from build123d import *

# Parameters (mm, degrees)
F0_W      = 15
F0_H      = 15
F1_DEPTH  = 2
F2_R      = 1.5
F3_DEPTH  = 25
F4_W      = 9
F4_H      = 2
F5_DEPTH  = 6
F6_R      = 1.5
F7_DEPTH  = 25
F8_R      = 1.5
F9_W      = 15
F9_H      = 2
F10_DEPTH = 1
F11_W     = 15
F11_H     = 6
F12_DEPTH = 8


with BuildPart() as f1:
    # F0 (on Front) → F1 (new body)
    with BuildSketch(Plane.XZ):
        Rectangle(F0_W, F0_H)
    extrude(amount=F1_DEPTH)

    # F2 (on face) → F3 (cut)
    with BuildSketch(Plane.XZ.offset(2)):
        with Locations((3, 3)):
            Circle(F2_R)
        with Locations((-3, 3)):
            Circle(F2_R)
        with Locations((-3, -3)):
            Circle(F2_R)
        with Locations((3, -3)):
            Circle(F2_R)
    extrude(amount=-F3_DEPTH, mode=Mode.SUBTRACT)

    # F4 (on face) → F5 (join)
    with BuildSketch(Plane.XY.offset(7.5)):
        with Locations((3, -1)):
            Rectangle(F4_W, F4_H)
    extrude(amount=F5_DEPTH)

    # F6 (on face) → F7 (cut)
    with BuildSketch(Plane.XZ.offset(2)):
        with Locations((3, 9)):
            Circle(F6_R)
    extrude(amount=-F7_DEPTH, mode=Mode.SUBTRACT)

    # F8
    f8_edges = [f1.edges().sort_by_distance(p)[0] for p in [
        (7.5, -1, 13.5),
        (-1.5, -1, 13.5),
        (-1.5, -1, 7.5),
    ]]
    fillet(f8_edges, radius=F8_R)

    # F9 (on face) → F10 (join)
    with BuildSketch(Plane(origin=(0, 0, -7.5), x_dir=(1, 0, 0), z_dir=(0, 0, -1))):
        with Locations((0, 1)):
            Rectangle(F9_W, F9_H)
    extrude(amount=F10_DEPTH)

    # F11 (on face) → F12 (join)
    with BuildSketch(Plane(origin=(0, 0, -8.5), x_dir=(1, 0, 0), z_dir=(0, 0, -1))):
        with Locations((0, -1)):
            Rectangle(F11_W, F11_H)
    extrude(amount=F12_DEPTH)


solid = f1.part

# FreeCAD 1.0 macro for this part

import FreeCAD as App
import Part
import Sketcher

V = App.Vector
Q = App.Units.Quantity


def edges_at(feature, points):
    """Names of the edges that pass closest to the given points."""
    edges = feature.Shape.Edges
    near = lambda p: min(range(len(edges)), key=lambda i: edges[i].distToShape(Part.Vertex(*p))[0])
    return sorted({f"Edge{near(p) + 1}" for p in points})

doc = App.newDocument("Part")
body = doc.addObject("PartDesign::Body", "Body")

# Sketch on XZ plane
sketch1 = body.newObject("Sketcher::SketchObject", "Sketch")
sketch1.AttachmentSupport = (doc.getObject("XZ_Plane"), [""])
sketch1.MapMode = "FlatFace"
sketch1.addGeometry(Part.LineSegment(V(-8, 8, 0), V(-8, -8, 0)), False)
sketch1.addGeometry(Part.LineSegment(V(-8, -8, 0), V(8, -8, 0)), False)
sketch1.addGeometry(Part.LineSegment(V(8, -8, 0), V(8, 8, 0)), False)
sketch1.addGeometry(Part.LineSegment(V(8, 8, 0), V(-8, 8, 0)), False)
sketch1.addConstraint(Sketcher.Constraint("Coincident", 0, 2, 1, 1))
sketch1.addConstraint(Sketcher.Constraint("Coincident", 1, 2, 2, 1))
sketch1.addConstraint(Sketcher.Constraint("Coincident", 2, 2, 3, 1))
sketch1.addConstraint(Sketcher.Constraint("Coincident", 3, 2, 0, 1))
sketch1.addConstraint(Sketcher.Constraint("Vertical", 0))
sketch1.addConstraint(Sketcher.Constraint("Horizontal", 1))
sketch1.addConstraint(Sketcher.Constraint("Vertical", 2))
sketch1.addConstraint(Sketcher.Constraint("Horizontal", 3))
sketch1.addConstraint(Sketcher.Constraint("Symmetric", 0, 2, 2, 2, -1, 1))
sketch1.addConstraint(Sketcher.Constraint("Equal", 3, 0))
sketch1.addConstraint(Sketcher.Constraint("DistanceX", 1, 1, 1, 2, Q("15 mm")))
pad1 = body.newObject("PartDesign::Pad", "Pad")
pad1.Profile = sketch1
pad1.Length = 2

# Sketch on XZ plane
sketch2 = body.newObject("Sketcher::SketchObject", "Sketch001")
sketch2.AttachmentSupport = (doc.getObject("XZ_Plane"), [""])
sketch2.MapMode = "FlatFace"
sketch2.AttachmentOffset = App.Placement(V(0, 0, 2), App.Rotation())
sketch2.addGeometry(Part.Circle(V(3, 3, 0), V(0, 0, 1), 1.5), False)
sketch2.addGeometry(Part.Circle(V(-3, 3, 0), V(0, 0, 1), 1.5), False)
sketch2.addGeometry(Part.Circle(V(-3, -3, 0), V(0, 0, 1), 1.5), False)
sketch2.addGeometry(Part.Circle(V(3, -3, 0), V(0, 0, 1), 1.5), False)
sketch2.addConstraint(Sketcher.Constraint("Equal", 0, 1))
sketch2.addConstraint(Sketcher.Constraint("Equal", 1, 2))
sketch2.addConstraint(Sketcher.Constraint("Equal", 2, 3))
sketch2.addConstraint(Sketcher.Constraint("Symmetric", 0, 3, 2, 3, -1, 1))
sketch2.addConstraint(Sketcher.Constraint("Symmetric", 1, 3, 3, 3, -1, 1))
sketch2.addConstraint(Sketcher.Constraint("Symmetric", 0, 3, 1, 3, -2))
sketch2.addConstraint(Sketcher.Constraint("Diameter", 0, Q("3 mm")))
sketch2.addConstraint(Sketcher.Constraint("DistanceX", -1, 1, 0, 3, Q("3 mm")))
sketch2.addConstraint(Sketcher.Constraint("DistanceY", -1, 1, 0, 3, Q("3 mm")))
pocket1 = body.newObject("PartDesign::Pocket", "Pocket")
pocket1.Profile = sketch2
pocket1.Length = 25

# Sketch on XY plane
sketch3 = body.newObject("Sketcher::SketchObject", "Sketch002")
sketch3.AttachmentSupport = (doc.getObject("XY_Plane"), [""])
sketch3.MapMode = "FlatFace"
sketch3.AttachmentOffset = App.Placement(V(0, 0, 7.5), App.Rotation())
sketch3.addGeometry(Part.LineSegment(V(-1.5, 0, 0), V(-1.5, -2, 0)), False)
sketch3.addGeometry(Part.LineSegment(V(-1.5, -2, 0), V(7.5, -2, 0)), False)
sketch3.addGeometry(Part.LineSegment(V(7.5, -2, 0), V(7.5, 0, 0)), False)
sketch3.addGeometry(Part.LineSegment(V(7.5, 0, 0), V(-1.5, 0, 0)), False)
sketch3.addConstraint(Sketcher.Constraint("Coincident", 0, 2, 1, 1))
sketch3.addConstraint(Sketcher.Constraint("Coincident", 1, 2, 2, 1))
sketch3.addConstraint(Sketcher.Constraint("Coincident", 2, 2, 3, 1))
sketch3.addConstraint(Sketcher.Constraint("Coincident", 3, 2, 0, 1))
sketch3.addConstraint(Sketcher.Constraint("Vertical", 0))
sketch3.addConstraint(Sketcher.Constraint("Horizontal", 1))
sketch3.addConstraint(Sketcher.Constraint("Vertical", 2))
sketch3.addConstraint(Sketcher.Constraint("Horizontal", 3))
sketch3.addConstraint(Sketcher.Constraint("PointOnObject", 2, 2, -1))
sketch3.addConstraint(Sketcher.Constraint("DistanceX", 1, 1, 1, 2, Q("9 mm")))
sketch3.addConstraint(Sketcher.Constraint("DistanceY", 0, 2, 0, 1, Q("2 mm")))
sketch3.addConstraint(Sketcher.Constraint("DistanceX", 0, 2, -1, 1, Q("1.5 mm")))
pad2 = body.newObject("PartDesign::Pad", "Pad001")
pad2.Profile = sketch3
pad2.Length = 6

# Sketch on XZ plane
sketch4 = body.newObject("Sketcher::SketchObject", "Sketch003")
sketch4.AttachmentSupport = (doc.getObject("XZ_Plane"), [""])
sketch4.MapMode = "FlatFace"
sketch4.AttachmentOffset = App.Placement(V(0, 0, 2), App.Rotation())
sketch4.addGeometry(Part.Circle(V(3, 9, 0), V(0, 0, 1), 1.5), False)
sketch4.addConstraint(Sketcher.Constraint("Diameter", 0, Q("3 mm")))
sketch4.addConstraint(Sketcher.Constraint("DistanceX", -1, 1, 0, 3, Q("3 mm")))
sketch4.addConstraint(Sketcher.Constraint("DistanceY", -1, 1, 0, 3, Q("9 mm")))
pocket2 = body.newObject("PartDesign::Pocket", "Pocket001")
pocket2.Profile = sketch4
pocket2.Length = 25
doc.recompute()

fillet = body.newObject("PartDesign::Fillet", "Fillet")
fillet.Base = (pocket2, edges_at(pocket2, [(7.5, -1, 13.5), (-1.5, -1, 13.5), (-1.5, -1, 7.5)]))
fillet.Radius = 1.5

# Sketch on XY plane
sketch5 = body.newObject("Sketcher::SketchObject", "Sketch004")
sketch5.AttachmentSupport = (doc.getObject("XY_Plane"), [""])
sketch5.MapMode = "FlatFace"
sketch5.AttachmentOffset = App.Placement(V(0, 0, -7.5), App.Rotation())
sketch5.addGeometry(Part.LineSegment(V(-7.5, -2, 0), V(-7.5, 0, 0)), False)
sketch5.addGeometry(Part.LineSegment(V(-7.5, 0, 0), V(7.5, 0, 0)), False)
sketch5.addGeometry(Part.LineSegment(V(7.5, 0, 0), V(7.5, -2, 0)), False)
sketch5.addGeometry(Part.LineSegment(V(7.5, -2, 0), V(-7.5, -2, 0)), False)
sketch5.addConstraint(Sketcher.Constraint("Coincident", 0, 2, 1, 1))
sketch5.addConstraint(Sketcher.Constraint("Coincident", 1, 2, 2, 1))
sketch5.addConstraint(Sketcher.Constraint("Coincident", 2, 2, 3, 1))
sketch5.addConstraint(Sketcher.Constraint("Coincident", 3, 2, 0, 1))
sketch5.addConstraint(Sketcher.Constraint("Vertical", 0))
sketch5.addConstraint(Sketcher.Constraint("Horizontal", 1))
sketch5.addConstraint(Sketcher.Constraint("Vertical", 2))
sketch5.addConstraint(Sketcher.Constraint("Horizontal", 3))
sketch5.addConstraint(Sketcher.Constraint("Symmetric", 0, 2, 1, 2, -1, 1))
sketch5.addConstraint(Sketcher.Constraint("DistanceX", 1, 1, 1, 2, Q("15 mm")))
sketch5.addConstraint(Sketcher.Constraint("DistanceY", 0, 1, 0, 2, Q("2 mm")))
pad3 = body.newObject("PartDesign::Pad", "Pad002")
pad3.Profile = sketch5
pad3.Length = 1
pad3.Reversed = True

# Sketch on XY plane
sketch6 = body.newObject("Sketcher::SketchObject", "Sketch005")
sketch6.AttachmentSupport = (doc.getObject("XY_Plane"), [""])
sketch6.MapMode = "FlatFace"
sketch6.AttachmentOffset = App.Placement(V(0, 0, -8.5), App.Rotation())
sketch6.addGeometry(Part.LineSegment(V(-8, -2, 0), V(-8, 4, 0)), False)
sketch6.addGeometry(Part.LineSegment(V(-8, 4, 0), V(8, 4, 0)), False)
sketch6.addGeometry(Part.LineSegment(V(8, 4, 0), V(8, -2, 0)), False)
sketch6.addGeometry(Part.LineSegment(V(8, -2, 0), V(-8, -2, 0)), False)
sketch6.addConstraint(Sketcher.Constraint("Coincident", 0, 2, 1, 1))
sketch6.addConstraint(Sketcher.Constraint("Coincident", 1, 2, 2, 1))
sketch6.addConstraint(Sketcher.Constraint("Coincident", 2, 2, 3, 1))
sketch6.addConstraint(Sketcher.Constraint("Coincident", 3, 2, 0, 1))
sketch6.addConstraint(Sketcher.Constraint("Vertical", 0))
sketch6.addConstraint(Sketcher.Constraint("Horizontal", 1))
sketch6.addConstraint(Sketcher.Constraint("Vertical", 2))
sketch6.addConstraint(Sketcher.Constraint("Horizontal", 3))
sketch6.addConstraint(Sketcher.Constraint("DistanceX", 1, 1, 1, 2, Q("15 mm")))
sketch6.addConstraint(Sketcher.Constraint("DistanceY", 0, 1, 0, 2, Q("6 mm")))
sketch6.addConstraint(Sketcher.Constraint("DistanceY", -1, 1, 0, 2, Q("4 mm")))
sketch6.addConstraint(Sketcher.Constraint("DistanceX", 0, 2, -1, 1, Q("7.5 mm")))
pad4 = body.newObject("PartDesign::Pad", "Pad003")
pad4.Profile = sketch6
pad4.Length = 8
pad4.Reversed = True

doc.recompute()
